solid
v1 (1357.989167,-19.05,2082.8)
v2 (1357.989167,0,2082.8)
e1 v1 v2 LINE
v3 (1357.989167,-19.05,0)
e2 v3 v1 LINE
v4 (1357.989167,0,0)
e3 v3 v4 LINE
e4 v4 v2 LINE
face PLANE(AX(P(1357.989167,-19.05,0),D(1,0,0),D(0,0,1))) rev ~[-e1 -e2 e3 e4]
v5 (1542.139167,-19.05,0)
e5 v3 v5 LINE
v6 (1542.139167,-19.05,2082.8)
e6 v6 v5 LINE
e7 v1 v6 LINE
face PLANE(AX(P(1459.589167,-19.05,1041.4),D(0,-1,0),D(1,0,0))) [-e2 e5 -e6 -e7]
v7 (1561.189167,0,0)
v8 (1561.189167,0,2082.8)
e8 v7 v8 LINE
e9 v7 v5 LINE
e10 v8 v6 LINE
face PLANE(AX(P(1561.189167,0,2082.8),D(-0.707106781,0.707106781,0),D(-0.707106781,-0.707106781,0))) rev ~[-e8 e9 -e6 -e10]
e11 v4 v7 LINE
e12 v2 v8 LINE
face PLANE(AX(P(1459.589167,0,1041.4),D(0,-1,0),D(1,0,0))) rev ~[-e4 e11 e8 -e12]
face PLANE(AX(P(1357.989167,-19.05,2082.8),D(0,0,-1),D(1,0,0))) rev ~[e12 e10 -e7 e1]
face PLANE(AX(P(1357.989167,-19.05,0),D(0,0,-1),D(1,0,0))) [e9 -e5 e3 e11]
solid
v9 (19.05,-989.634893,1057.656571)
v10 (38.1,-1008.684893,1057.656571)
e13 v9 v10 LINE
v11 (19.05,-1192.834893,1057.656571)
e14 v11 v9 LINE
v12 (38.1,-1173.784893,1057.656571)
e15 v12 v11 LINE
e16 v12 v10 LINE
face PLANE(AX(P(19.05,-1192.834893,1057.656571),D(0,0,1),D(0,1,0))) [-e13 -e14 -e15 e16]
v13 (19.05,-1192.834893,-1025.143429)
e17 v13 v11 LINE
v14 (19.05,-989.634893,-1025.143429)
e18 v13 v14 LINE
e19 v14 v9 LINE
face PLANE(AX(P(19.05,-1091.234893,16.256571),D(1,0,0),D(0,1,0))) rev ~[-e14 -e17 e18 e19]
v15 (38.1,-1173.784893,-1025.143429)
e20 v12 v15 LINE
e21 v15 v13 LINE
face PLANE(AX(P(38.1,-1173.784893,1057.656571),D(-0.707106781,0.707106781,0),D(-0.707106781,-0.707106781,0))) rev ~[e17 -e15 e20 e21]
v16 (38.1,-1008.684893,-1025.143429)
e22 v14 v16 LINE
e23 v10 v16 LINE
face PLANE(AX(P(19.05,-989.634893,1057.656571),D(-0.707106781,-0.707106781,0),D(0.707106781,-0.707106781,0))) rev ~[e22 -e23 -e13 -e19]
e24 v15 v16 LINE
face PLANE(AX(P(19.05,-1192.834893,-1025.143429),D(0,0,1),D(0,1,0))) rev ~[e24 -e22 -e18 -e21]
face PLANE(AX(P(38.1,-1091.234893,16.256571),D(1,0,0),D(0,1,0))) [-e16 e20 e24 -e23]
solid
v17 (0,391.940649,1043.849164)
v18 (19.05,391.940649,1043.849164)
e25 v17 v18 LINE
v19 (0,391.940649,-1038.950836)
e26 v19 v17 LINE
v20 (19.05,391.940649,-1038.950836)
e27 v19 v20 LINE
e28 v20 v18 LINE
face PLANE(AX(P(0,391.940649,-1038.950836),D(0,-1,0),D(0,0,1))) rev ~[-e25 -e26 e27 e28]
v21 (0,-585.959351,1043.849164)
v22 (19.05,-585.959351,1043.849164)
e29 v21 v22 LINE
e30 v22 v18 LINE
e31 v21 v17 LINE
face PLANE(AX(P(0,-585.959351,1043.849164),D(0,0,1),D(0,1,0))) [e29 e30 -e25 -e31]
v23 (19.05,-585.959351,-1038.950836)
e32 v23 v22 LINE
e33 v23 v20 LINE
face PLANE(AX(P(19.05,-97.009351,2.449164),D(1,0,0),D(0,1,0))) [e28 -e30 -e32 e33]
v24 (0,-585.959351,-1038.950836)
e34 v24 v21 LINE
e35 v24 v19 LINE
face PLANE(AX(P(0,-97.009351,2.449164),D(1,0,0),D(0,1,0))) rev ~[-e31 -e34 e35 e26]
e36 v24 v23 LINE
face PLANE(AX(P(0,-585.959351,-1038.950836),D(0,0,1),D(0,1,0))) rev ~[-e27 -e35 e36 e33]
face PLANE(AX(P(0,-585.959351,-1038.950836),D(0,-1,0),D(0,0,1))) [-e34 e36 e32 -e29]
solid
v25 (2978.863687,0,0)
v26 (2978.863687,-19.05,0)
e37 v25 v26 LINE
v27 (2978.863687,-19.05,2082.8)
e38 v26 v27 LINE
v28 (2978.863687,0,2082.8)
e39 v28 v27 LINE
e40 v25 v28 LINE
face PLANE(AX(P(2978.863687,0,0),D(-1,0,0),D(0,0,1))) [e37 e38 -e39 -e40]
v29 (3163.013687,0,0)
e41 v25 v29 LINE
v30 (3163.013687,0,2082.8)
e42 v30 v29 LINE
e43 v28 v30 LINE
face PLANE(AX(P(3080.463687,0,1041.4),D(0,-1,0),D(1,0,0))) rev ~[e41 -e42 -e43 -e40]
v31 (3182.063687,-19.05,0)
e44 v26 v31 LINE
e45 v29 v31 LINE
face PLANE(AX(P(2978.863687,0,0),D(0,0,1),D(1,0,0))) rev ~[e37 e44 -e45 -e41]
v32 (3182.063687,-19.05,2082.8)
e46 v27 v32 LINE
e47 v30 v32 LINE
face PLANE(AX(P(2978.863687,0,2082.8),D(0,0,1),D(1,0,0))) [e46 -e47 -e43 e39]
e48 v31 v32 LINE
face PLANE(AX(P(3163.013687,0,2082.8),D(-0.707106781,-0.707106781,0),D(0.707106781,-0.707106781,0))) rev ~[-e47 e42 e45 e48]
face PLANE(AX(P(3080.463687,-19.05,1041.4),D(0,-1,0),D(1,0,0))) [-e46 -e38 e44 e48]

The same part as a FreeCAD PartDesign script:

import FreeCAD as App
import Part
import Sketcher
Q = App.Units.Quantity


def add_polygon(sketch, points):
    """Adds a closed chain of lines whose ends are joined by coincident constraints."""
    first, n = sketch.GeometryCount, len(points)
    for a, b in zip(points, points[1:] + points[:1]):
        sketch.addGeometry(Part.LineSegment(App.Vector(*a, 0), App.Vector(*b, 0)), False)
    for i in range(n):
        sketch.addConstraint(Sketcher.Constraint("Coincident", first + i, 2, first + (i + 1) % n, 1))

doc = App.newDocument("Part")
body = doc.addObject("PartDesign::Body", "Body")

# Sketch on YZ plane
sketch1 = body.newObject("Sketcher::SketchObject", "Sketch")
sketch1.AttachmentSupport = (doc.getObject("YZ_Plane"), [""])
sketch1.MapMode = "FlatFace"
add_polygon(sketch1, [(-586, 1044), (-586, -1039), (392, -1039), (392, 1044)])  # lines 0-3
sketch1.addConstraint([
    Sketcher.Constraint("Vertical", 0),
    Sketcher.Constraint("Horizontal", 1),
    Sketcher.Constraint("Vertical", 2),
    Sketcher.Constraint("Horizontal", 3),
    Sketcher.Constraint("DistanceY", 0, 2, 0, 1, Q("82 in")),
    Sketcher.Constraint("DistanceX", 1, 1, 1, 2, Q("38.5 in")),
    Sketcher.Constraint("DistanceX", 0, 2, -1, 1, Q("585.959351 mm")),
    Sketcher.Constraint("DistanceY", 0, 2, -1, 1, Q("1038.950836 mm")),
])
pad1 = body.newObject("PartDesign::Pad", "Pad")
pad1.Profile = sketch1
pad1.Length = Q("0.75 in")
body2 = doc.addObject("PartDesign::Body", "Body001")

# Sketch on XZ plane
sketch2 = body2.newObject("Sketcher::SketchObject", "Sketch001")
sketch2.AttachmentSupport = (doc.getObject("XZ_Plane001"), [""])
sketch2.MapMode = "FlatFace"
add_polygon(sketch2, [(2979, 2083), (2979, 0), (3182, 0), (3182, 2083)])  # lines 0-3
sketch2.addConstraint([
    Sketcher.Constraint("Vertical", 0),
    Sketcher.Constraint("Horizontal", 1),
    Sketcher.Constraint("Vertical", 2),
    Sketcher.Constraint("Horizontal", 3),
    Sketcher.Constraint("PointOnObject", 0, 2, -1),
    Sketcher.Constraint("DistanceX", 1, 1, 1, 2, Q("8 in")),
    Sketcher.Constraint("DistanceY", 0, 2, 0, 1, Q("82 in")),
    Sketcher.Constraint("DistanceX", -1, 1, 0, 2, Q("2978.863687 mm")),
])
pad2 = body2.newObject("PartDesign::Pad", "Pad001")
pad2.Profile = sketch2
pad2.Length = Q("0.75 in")

# Sketch on XY plane
sketch3 = body2.newObject("Sketcher::SketchObject", "Sketch002")
sketch3.AttachmentSupport = (doc.getObject("XY_Plane001"), [""])
sketch3.MapMode = "FlatFace"
sketch3.AttachmentOffset = App.Placement(App.Vector(0, 0, 82 * 25.4), App.Rotation())
add_polygon(sketch3, [(3163, 0), (3182, -19), (3182, 0)])  # lines 0-2
sketch3.addConstraint([
    Sketcher.Constraint("Vertical", 1),
    Sketcher.Constraint("Horizontal", 2),
    Sketcher.Constraint("PointOnObject", 1, 2, -1),
    Sketcher.Constraint("Equal", 2, 1),
    Sketcher.Constraint("DistanceX", 2, 2, 2, 1, Q("0.75 in")),
    Sketcher.Constraint("DistanceX", -1, 1, 0, 2, Q("3182.063687 mm")),
])
pocket1 = body2.newObject("PartDesign::Pocket", "Pocket")
pocket1.Profile = sketch3
pocket1.Length = Q("82 in")
body3 = doc.addObject("PartDesign::Body", "Body002")

# Sketch on XZ plane
sketch4 = body3.newObject("Sketcher::SketchObject", "Sketch003")
sketch4.AttachmentSupport = (doc.getObject("XZ_Plane002"), [""])
sketch4.MapMode = "FlatFace"
sketch4.AttachmentOffset = App.Placement(App.Vector(0, 0, 0.75 * 25.4), App.Rotation())
add_polygon(sketch4, [(1358, 2083), (1358, 0), (1561, 0), (1561, 2083)])  # lines 0-3
sketch4.addConstraint([
    Sketcher.Constraint("Vertical", 0),
    Sketcher.Constraint("Horizontal", 1),
    Sketcher.Constraint("Vertical", 2),
    Sketcher.Constraint("Horizontal", 3),
    Sketcher.Constraint("PointOnObject", 0, 2, -1),
    Sketcher.Constraint("DistanceX", 1, 1, 1, 2, Q("8 in")),
    Sketcher.Constraint("DistanceY", 0, 2, 0, 1, Q("82 in")),
    Sketcher.Constraint("DistanceX", -1, 1, 0, 2, Q("1357.989167 mm")),
])
pad3 = body3.newObject("PartDesign::Pad", "Pad002")
pad3.Profile = sketch4
pad3.Length = Q("0.75 in")
pad3.Reversed = True

# Sketch on XY plane
sketch5 = body3.newObject("Sketcher::SketchObject", "Sketch004")
sketch5.AttachmentSupport = (doc.getObject("XY_Plane002"), [""])
sketch5.MapMode = "FlatFace"
sketch5.AttachmentOffset = App.Placement(App.Vector(0, 0, 82 * 25.4), App.Rotation())
add_polygon(sketch5, [(1561, 0), (1542, -19), (1561, -19)])  # lines 0-2
sketch5.addConstraint([
    Sketcher.Constraint("Horizontal", 1),
    Sketcher.Constraint("Vertical", 2),
    Sketcher.Constraint("PointOnObject", 2, 2, -1),
    Sketcher.Constraint("Equal", 1, 2),
    Sketcher.Constraint("DistanceX", 1, 1, 1, 2, Q("0.75 in")),
    Sketcher.Constraint("DistanceX", -1, 1, 0, 2, Q("1542.139167 mm")),
])
pocket2 = body3.newObject("PartDesign::Pocket", "Pocket001")
pocket2.Profile = sketch5
pocket2.Length = Q("82 in")
body4 = doc.addObject("PartDesign::Body", "Body003")

# Sketch on YZ plane
sketch6 = body4.newObject("Sketcher::SketchObject", "Sketch005")
sketch6.AttachmentSupport = (doc.getObject("YZ_Plane003"), [""])
sketch6.MapMode = "FlatFace"
sketch6.AttachmentOffset = App.Placement(App.Vector(0, 0, 0.75 * 25.4), App.Rotation())
add_polygon(sketch6, [(-1193, 1058), (-1193, -1025), (-990, -1025), (-990, 1058)])  # lines 0-3
sketch6.addConstraint([
    Sketcher.Constraint("Vertical", 0),
    Sketcher.Constraint("Horizontal", 1),
    Sketcher.Constraint("Vertical", 2),
    Sketcher.Constraint("Horizontal", 3),
    Sketcher.Constraint("DistanceX", 1, 1, 1, 2, Q("8 in")),
    Sketcher.Constraint("DistanceY", 0, 2, 0, 1, Q("82 in")),
    Sketcher.Constraint("DistanceY", 0, 2, -1, 1, Q("1025.143429 mm")),
    Sketcher.Constraint("DistanceX", 0, 2, -1, 1, Q("1192.834893 mm")),
])
pad4 = body4.newObject("PartDesign::Pad", "Pad003")
pad4.Profile = sketch6
pad4.Length = Q("0.75 in")

# Sketch on XY plane
sketch7 = body4.newObject("Sketcher::SketchObject", "Sketch006")
sketch7.AttachmentSupport = (doc.getObject("XY_Plane003"), [""])
sketch7.MapMode = "FlatFace"
sketch7.AttachmentOffset = App.Placement(App.Vector(0, 0, 1057.656571), App.Rotation())
add_polygon(sketch7, [(38, -1193), (38, -1174), (19, -1193)])  # lines 0-2
add_polygon(sketch7, [(19, -990), (38, -1009), (38, -990)])  # lines 3-5
sketch7.addConstraint([
    Sketcher.Constraint("Vertical", 0),
    Sketcher.Constraint("Horizontal", 2),
    Sketcher.Constraint("Vertical", 4),
    Sketcher.Constraint("Horizontal", 5),
    Sketcher.Constraint("Perpendicular", 1, 3),
    Sketcher.Constraint("Vertical", 2, 2, 3, 2),
    Sketcher.Constraint("Vertical", 1, 2, 5, 2),
    Sketcher.Constraint("Equal", 5, 0),
    Sketcher.Constraint("DistanceY", 2, 2, 4, 2, Q("8 in")),
    Sketcher.Constraint("DistanceX", 2, 1, 2, 2, Q("0.75 in")),
    Sketcher.Constraint("DistanceX", -1, 1, 0, 2, Q("1.5 in")),
    Sketcher.Constraint("DistanceY", 0, 2, -1, 1, Q("1173.784893 mm")),
])
pocket3 = body4.newObject("PartDesign::Pocket", "Pocket002")
pocket3.Profile = sketch7
pocket3.Length = Q("82 in")

doc.recompute()
